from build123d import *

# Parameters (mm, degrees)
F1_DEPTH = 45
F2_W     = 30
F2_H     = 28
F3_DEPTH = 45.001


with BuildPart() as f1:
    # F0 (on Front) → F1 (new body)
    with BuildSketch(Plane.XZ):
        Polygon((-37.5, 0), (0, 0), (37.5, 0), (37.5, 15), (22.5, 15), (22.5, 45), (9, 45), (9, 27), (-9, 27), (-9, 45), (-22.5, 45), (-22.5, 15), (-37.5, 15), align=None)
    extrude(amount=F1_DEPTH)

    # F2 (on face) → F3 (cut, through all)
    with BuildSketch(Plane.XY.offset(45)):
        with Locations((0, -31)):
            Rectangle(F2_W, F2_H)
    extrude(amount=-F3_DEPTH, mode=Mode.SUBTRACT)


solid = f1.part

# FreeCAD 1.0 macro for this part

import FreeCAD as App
import Part
import Sketcher

V = App.Vector
Q = App.Units.Quantity

doc = App.newDocument("Part")
body = doc.addObject("PartDesign::Body", "Body")

sketch1 = body.newObject("Sketcher::SketchObject", "Sketch")
sketch1.AttachmentSupport = (doc.getObject("XZ_Plane"), [""])
sketch1.MapMode = "FlatFace"
sketch1.addGeometry(Part.LineSegment(V(-38, 0, 0), V(38, 0, 0)), False)
sketch1.addGeometry(Part.LineSegment(V(38, 0, 0), V(38, 15, 0)), False)
sketch1.addGeometry(Part.LineSegment(V(38, 15, 0), V(22, 15, 0)), False)
sketch1.addGeometry(Part.LineSegment(V(22, 15, 0), V(22, 45, 0)), False)
sketch1.addGeometry(Part.LineSegment(V(22, 45, 0), V(9, 45, 0)), False)
sketch1.addGeometry(Part.LineSegment(V(9, 45, 0), V(9, 27, 0)), False)
sketch1.addGeometry(Part.LineSegment(V(9, 27, 0), V(-9, 27, 0)), False)
sketch1.addGeometry(Part.LineSegment(V(-9, 27, 0), V(-9, 45, 0)), False)
sketch1.addGeometry(Part.LineSegment(V(-9, 45, 0), V(-22, 45, 0)), False)
sketch1.addGeometry(Part.LineSegment(V(-22, 45, 0), V(-22, 15, 0)), False)
sketch1.addGeometry(Part.LineSegment(V(-22, 15, 0), V(-38, 15, 0)), False)
sketch1.addGeometry(Part.LineSegment(V(-38, 15, 0), V(-38, 0, 0)), False)
sketch1.addConstraint(Sketcher.Constraint("Coincident", 0, 2, 1, 1))
sketch1.addConstraint(Sketcher.Constraint("Coincident", 1, 2, 2, 1))
sketch1.addConstraint(Sketcher.Constraint("Coincident", 2, 2, 3, 1))
sketch1.addConstraint(Sketcher.Constraint("Coincident", 3, 2, 4, 1))
sketch1.addConstraint(Sketcher.Constraint("Coincident", 4, 2, 5, 1))
sketch1.addConstraint(Sketcher.Constraint("Coincident", 5, 2, 6, 1))
sketch1.addConstraint(Sketcher.Constraint("Coincident", 6, 2, 7, 1))
sketch1.addConstraint(Sketcher.Constraint("Coincident", 7, 2, 8, 1))
sketch1.addConstraint(Sketcher.Constraint("Coincident", 8, 2, 9, 1))
sketch1.addConstraint(Sketcher.Constraint("Coincident", 9, 2, 10, 1))
sketch1.addConstraint(Sketcher.Constraint("Coincident", 10, 2, 11, 1))
sketch1.addConstraint(Sketcher.Constraint("Coincident", 11, 2, 0, 1))
sketch1.addConstraint(Sketcher.Constraint("Horizontal", 0))
sketch1.addConstraint(Sketcher.Constraint("Vertical", 1))
sketch1.addConstraint(Sketcher.Constraint("Horizontal", 2))
sketch1.addConstraint(Sketcher.Constraint("Vertical", 3))
sketch1.addConstraint(Sketcher.Constraint("Horizontal", 4))
sketch1.addConstraint(Sketcher.Constraint("Vertical", 5))
sketch1.addConstraint(Sketcher.Constraint("Horizontal", 6))
sketch1.addConstraint(Sketcher.Constraint("Vertical", 7))
sketch1.addConstraint(Sketcher.Constraint("Horizontal", 8))
sketch1.addConstraint(Sketcher.Constraint("Vertical", 9))
sketch1.addConstraint(Sketcher.Constraint("Horizontal", 10))
sketch1.addConstraint(Sketcher.Constraint("Vertical", 11))
sketch1.addConstraint(Sketcher.Constraint("Symmetric", 0, 2, 11, 2, -1, 1))
sketch1.addConstraint(Sketcher.Constraint("Symmetric", 4, 2, 7, 2, -2))
sketch1.addConstraint(Sketcher.Constraint("Symmetric", 2, 2, 9, 2, -2))
sketch1.addConstraint(Sketcher.Constraint("Equal", 10, 1))
sketch1.addConstraint(Sketcher.Constraint("Equal", 6, 5))
sketch1.addConstraint(Sketcher.Constraint("DistanceX", 0, 1, 0, 2, Q("75 mm")))
sketch1.addConstraint(Sketcher.Constraint("DistanceX", 2, 2, 2, 1, Q("15 mm")))
sketch1.addConstraint(Sketcher.Constraint("DistanceX", 6, 2, 6, 1, Q("18 mm")))
sketch1.addConstraint(Sketcher.Constraint("DistanceY", 3, 1, 3, 2, Q("30 mm")))
pad1 = body.newObject("PartDesign::Pad", "Pad")
pad1.Profile = sketch1
pad1.Length = 45

sketch2 = body.newObject("Sketcher::SketchObject", "Sketch001")
sketch2.AttachmentSupport = (doc.getObject("XY_Plane"), [""])
sketch2.MapMode = "FlatFace"
sketch2.AttachmentOffset = App.Placement(V(0, 0, 45), App.Rotation())
sketch2.addGeometry(Part.LineSegment(V(-15, -17, 0), V(-15, -45, 0)), False)
sketch2.addGeometry(Part.LineSegment(V(-15, -45, 0), V(15, -45, 0)), False)
sketch2.addGeometry(Part.LineSegment(V(15, -45, 0), V(15, -17, 0)), False)
sketch2.addGeometry(Part.LineSegment(V(15, -17, 0), V(-15, -17, 0)), False)
sketch2.addConstraint(Sketcher.Constraint("Coincident", 0, 2, 1, 1))
sketch2.addConstraint(Sketcher.Constraint("Coincident", 1, 2, 2, 1))
sketch2.addConstraint(Sketcher.Constraint("Coincident", 2, 2, 3, 1))
sketch2.addConstraint(Sketcher.Constraint("Coincident", 3, 2, 0, 1))
sketch2.addConstraint(Sketcher.Constraint("Vertical", 0))
sketch2.addConstraint(Sketcher.Constraint("Horizontal", 1))
sketch2.addConstraint(Sketcher.Constraint("Vertical", 2))
sketch2.addConstraint(Sketcher.Constraint("Horizontal", 3))
sketch2.addConstraint(Sketcher.Constraint("DistanceX", 1, 1, 1, 2, Q("30 mm")))
sketch2.addConstraint(Sketcher.Constraint("DistanceY", 0, 2, 0, 1, Q("28 mm")))
sketch2.addConstraint(Sketcher.Constraint("DistanceX", 0, 2, -1, 1, Q("15 mm")))
sketch2.addConstraint(Sketcher.Constraint("DistanceY", 0, 2, -1, 1, Q("45 mm")))
pocket1 = body.newObject("PartDesign::Pocket", "Pocket")
pocket1.Profile = sketch2
pocket1.Type = "ThroughAll"

doc.recompute()
